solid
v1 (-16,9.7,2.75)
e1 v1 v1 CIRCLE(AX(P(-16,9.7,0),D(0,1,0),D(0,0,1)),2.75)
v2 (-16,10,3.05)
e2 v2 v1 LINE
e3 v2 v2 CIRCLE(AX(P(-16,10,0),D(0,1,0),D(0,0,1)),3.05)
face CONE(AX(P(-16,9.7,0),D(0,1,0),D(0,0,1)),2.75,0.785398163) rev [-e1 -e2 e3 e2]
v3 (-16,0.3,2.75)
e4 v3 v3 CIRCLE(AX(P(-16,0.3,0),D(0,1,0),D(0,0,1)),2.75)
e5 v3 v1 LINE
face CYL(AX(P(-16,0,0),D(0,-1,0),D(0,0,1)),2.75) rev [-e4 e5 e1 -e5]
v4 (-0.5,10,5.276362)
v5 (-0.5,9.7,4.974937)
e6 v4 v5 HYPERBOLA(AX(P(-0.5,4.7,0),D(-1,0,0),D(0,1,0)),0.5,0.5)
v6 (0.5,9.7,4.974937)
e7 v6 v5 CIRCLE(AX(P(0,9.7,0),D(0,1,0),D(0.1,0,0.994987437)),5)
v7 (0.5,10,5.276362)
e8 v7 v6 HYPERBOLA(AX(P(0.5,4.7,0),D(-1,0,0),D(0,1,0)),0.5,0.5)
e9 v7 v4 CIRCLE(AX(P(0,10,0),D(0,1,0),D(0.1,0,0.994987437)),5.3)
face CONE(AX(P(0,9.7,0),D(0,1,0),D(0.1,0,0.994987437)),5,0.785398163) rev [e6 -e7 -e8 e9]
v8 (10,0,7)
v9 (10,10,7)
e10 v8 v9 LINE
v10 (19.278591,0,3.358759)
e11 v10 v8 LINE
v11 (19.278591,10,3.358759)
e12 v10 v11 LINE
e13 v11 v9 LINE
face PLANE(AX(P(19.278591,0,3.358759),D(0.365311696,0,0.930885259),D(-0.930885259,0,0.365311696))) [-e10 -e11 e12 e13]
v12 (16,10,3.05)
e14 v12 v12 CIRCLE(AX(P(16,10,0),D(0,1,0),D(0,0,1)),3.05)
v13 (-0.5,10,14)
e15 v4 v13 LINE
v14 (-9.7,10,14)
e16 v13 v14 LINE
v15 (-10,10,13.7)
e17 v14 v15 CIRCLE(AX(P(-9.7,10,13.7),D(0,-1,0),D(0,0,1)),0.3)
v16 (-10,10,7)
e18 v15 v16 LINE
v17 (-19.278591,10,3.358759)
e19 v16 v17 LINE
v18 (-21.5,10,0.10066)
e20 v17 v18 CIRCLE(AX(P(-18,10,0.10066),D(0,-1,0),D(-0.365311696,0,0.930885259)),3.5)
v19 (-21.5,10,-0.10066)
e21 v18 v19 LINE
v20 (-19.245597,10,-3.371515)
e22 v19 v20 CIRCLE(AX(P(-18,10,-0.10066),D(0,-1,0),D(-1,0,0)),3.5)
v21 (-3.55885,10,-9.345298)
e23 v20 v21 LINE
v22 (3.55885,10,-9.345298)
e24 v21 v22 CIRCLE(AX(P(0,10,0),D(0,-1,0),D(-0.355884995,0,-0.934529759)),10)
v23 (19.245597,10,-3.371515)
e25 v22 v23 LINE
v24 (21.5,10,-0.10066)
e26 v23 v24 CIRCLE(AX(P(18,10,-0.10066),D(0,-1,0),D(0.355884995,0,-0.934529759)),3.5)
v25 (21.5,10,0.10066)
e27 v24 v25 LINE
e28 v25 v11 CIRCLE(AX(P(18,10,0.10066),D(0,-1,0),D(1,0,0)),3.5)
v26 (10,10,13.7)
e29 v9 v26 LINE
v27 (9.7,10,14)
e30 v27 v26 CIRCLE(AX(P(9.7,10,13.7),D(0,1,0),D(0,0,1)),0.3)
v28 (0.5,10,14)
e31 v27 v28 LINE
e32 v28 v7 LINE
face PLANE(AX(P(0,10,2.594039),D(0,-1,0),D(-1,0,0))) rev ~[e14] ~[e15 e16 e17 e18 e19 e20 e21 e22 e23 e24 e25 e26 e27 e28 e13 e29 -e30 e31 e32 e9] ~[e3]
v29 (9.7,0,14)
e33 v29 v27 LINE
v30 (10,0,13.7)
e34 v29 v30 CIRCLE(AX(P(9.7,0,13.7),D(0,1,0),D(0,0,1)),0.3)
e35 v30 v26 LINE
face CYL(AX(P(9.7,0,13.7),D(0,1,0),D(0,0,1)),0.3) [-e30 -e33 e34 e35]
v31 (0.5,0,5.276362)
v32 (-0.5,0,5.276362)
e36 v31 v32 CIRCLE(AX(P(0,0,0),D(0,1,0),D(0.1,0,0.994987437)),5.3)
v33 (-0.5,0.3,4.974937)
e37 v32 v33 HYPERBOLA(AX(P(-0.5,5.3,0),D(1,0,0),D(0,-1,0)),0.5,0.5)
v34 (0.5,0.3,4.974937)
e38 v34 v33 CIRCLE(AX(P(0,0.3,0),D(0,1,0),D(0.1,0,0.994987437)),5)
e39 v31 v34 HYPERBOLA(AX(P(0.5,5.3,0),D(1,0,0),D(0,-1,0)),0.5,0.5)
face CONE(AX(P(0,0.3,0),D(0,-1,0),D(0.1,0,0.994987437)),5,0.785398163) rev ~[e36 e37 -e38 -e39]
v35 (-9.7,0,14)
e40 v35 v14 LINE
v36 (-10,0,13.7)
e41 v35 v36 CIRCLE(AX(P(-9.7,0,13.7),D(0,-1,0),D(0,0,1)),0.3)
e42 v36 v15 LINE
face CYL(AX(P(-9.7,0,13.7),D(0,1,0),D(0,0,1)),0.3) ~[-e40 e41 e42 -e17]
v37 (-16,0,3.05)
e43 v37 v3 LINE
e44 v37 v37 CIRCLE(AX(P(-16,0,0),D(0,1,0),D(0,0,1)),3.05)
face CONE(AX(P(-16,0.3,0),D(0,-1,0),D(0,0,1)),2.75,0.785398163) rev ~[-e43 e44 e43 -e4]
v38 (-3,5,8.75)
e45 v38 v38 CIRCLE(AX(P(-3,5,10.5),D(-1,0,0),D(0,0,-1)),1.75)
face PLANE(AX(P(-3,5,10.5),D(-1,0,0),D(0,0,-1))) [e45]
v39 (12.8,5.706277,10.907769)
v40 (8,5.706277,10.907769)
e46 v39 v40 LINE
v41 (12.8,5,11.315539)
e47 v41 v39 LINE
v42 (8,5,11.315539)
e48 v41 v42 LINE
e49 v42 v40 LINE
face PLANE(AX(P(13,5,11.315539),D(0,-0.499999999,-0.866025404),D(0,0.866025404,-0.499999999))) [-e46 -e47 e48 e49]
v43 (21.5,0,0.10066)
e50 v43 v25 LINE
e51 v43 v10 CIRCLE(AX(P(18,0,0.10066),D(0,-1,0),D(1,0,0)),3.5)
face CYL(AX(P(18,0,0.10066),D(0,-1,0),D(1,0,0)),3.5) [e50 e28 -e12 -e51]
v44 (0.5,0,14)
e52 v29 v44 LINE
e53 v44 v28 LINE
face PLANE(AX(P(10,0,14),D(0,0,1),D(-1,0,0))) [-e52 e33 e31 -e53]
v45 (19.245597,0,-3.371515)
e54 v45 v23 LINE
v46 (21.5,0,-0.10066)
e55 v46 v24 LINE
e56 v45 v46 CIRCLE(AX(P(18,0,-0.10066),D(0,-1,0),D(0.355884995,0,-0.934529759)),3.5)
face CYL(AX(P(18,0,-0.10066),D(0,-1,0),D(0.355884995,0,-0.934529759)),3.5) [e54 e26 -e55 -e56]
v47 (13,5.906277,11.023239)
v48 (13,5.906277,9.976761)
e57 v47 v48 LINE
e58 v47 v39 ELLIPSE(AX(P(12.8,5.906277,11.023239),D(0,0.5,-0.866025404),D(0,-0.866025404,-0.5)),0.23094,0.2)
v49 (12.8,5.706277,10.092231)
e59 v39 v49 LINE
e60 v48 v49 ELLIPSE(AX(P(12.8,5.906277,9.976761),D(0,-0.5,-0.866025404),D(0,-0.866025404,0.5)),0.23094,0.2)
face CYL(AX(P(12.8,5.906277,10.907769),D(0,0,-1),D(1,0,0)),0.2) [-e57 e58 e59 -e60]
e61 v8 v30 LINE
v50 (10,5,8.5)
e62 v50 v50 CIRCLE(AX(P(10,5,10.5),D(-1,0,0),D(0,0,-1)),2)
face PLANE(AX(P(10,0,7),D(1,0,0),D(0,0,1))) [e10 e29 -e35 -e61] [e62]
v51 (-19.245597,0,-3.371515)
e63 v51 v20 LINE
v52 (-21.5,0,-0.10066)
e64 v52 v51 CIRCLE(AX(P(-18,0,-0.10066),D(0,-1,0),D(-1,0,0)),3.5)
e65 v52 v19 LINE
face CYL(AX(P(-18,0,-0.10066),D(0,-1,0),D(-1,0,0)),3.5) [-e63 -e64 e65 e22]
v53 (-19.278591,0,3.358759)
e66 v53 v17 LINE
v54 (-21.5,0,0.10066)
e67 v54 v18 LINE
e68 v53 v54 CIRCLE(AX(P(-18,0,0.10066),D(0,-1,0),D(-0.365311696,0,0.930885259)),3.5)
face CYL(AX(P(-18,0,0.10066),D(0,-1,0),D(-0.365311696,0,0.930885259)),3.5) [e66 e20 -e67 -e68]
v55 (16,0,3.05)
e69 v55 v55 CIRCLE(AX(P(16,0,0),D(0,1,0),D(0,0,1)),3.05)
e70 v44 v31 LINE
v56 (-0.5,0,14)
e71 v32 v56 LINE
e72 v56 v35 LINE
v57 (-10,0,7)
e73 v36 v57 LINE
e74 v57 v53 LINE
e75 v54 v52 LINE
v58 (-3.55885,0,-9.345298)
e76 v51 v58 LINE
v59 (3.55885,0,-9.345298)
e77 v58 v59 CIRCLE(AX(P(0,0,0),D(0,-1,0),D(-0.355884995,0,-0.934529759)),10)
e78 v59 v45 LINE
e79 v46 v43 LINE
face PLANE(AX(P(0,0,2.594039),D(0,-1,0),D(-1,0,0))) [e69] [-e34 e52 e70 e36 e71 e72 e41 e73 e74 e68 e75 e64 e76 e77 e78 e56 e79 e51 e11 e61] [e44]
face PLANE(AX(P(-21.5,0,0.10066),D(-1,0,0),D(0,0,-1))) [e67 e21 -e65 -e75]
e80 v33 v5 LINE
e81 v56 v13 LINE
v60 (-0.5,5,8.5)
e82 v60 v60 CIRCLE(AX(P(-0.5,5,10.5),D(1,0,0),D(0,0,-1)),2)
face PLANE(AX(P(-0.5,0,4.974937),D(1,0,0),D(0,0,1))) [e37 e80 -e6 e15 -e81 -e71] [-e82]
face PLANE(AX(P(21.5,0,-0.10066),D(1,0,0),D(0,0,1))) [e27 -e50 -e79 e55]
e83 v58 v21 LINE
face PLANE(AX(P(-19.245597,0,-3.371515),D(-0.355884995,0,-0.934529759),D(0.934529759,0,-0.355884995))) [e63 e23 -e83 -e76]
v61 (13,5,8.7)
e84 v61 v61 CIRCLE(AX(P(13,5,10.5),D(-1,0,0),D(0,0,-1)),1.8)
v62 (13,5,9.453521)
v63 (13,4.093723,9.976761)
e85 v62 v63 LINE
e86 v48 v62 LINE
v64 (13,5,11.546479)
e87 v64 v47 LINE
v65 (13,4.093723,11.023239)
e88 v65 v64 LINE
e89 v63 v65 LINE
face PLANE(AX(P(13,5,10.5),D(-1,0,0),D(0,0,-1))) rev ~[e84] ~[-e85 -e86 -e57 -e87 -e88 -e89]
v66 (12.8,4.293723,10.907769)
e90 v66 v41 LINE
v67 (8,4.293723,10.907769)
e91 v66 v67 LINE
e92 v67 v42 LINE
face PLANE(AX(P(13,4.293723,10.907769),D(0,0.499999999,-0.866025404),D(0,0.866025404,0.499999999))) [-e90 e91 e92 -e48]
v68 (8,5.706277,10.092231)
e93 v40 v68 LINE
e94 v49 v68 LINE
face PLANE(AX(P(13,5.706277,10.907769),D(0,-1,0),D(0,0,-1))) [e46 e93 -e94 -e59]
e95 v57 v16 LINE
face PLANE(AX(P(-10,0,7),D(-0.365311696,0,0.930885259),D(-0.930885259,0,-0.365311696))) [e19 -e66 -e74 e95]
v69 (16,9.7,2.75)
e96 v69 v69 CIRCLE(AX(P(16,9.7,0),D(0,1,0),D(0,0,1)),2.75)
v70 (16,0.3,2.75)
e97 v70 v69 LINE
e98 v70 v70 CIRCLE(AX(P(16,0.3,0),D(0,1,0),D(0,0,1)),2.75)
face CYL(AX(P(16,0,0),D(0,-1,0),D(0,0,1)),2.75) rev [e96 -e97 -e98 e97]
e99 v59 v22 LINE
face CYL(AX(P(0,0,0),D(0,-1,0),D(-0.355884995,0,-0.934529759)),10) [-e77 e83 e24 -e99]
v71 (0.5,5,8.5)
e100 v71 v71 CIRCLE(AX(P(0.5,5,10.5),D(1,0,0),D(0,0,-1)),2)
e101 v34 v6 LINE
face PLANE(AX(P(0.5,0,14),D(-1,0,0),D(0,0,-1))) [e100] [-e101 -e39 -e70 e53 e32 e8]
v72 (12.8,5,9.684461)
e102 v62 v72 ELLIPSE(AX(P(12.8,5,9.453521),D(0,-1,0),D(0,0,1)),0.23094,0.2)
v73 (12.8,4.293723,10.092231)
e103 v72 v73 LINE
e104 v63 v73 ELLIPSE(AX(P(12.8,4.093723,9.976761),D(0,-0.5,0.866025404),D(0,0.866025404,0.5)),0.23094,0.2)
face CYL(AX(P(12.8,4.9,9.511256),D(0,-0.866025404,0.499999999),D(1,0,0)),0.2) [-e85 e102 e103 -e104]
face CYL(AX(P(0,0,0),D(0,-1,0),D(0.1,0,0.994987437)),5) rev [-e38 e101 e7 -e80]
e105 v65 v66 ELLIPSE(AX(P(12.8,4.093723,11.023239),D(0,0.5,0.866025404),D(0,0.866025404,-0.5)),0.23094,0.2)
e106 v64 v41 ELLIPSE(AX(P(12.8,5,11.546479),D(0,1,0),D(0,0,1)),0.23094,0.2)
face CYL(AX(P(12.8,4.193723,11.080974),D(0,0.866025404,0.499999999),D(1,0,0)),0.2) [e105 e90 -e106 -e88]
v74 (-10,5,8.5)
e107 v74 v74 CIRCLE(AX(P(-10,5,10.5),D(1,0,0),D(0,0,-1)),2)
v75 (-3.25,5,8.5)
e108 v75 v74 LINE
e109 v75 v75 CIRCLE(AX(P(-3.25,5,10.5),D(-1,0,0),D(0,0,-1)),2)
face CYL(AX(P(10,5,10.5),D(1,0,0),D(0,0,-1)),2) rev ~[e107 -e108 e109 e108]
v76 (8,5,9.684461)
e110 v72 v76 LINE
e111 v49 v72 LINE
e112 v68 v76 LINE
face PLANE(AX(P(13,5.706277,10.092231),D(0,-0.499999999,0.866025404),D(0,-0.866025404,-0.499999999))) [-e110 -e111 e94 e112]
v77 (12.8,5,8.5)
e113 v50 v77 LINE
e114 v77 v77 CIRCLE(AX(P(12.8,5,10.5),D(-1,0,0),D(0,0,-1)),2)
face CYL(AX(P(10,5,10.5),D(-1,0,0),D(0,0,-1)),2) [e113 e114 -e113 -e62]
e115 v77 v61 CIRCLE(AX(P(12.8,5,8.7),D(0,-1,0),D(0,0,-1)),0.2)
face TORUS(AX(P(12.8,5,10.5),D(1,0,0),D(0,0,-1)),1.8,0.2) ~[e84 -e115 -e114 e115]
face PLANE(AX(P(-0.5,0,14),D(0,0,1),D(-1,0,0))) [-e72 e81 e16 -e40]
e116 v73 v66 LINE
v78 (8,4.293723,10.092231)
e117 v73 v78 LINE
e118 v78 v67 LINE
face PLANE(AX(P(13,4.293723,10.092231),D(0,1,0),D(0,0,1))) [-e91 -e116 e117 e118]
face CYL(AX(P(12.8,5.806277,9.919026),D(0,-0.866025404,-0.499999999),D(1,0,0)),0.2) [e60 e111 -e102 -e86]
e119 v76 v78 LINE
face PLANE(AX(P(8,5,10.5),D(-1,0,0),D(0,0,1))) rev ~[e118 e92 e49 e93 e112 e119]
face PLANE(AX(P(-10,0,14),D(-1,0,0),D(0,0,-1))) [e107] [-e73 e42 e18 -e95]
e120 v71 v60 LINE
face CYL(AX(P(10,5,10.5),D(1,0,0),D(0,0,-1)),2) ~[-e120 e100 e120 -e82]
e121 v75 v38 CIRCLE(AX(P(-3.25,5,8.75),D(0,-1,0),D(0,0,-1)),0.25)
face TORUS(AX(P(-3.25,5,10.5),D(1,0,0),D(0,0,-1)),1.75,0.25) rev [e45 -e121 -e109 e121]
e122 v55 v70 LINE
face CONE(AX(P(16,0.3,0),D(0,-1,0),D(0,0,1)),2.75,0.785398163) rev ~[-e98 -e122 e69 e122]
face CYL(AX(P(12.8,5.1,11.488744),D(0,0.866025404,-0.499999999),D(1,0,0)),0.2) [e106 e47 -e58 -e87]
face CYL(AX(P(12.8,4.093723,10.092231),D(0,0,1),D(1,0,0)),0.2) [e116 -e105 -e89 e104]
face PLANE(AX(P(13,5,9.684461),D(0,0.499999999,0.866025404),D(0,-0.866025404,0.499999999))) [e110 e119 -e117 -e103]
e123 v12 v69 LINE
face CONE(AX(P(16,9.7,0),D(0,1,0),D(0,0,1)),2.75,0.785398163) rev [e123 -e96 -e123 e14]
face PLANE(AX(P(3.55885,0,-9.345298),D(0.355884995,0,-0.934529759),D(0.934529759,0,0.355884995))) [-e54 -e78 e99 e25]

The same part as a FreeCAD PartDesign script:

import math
import FreeCAD as App
import Part
import Sketcher
from FreeCAD import Vector
Q = App.Units.Quantity


def edges_at(feature, points):
    """Names of the edges that pass closest to the given points."""
    edges = feature.Shape.Edges
    near = lambda p: min(range(len(edges)), key=lambda i: edges[i].distToShape(Part.Vertex(*p))[0])
    return sorted({f"Edge{near(p) + 1}" for p in points})

doc = App.newDocument("Part")
body = doc.addObject("PartDesign::Body", "Body")

# Sketch on XZ plane
sketch1 = doc.addObject("Sketcher::SketchObject", "Sketch")
body.addObject(sketch1)
sketch1.AttachmentSupport = (doc.XZ_Plane, [""])
sketch1.MapMode = "FlatFace"
sketch1.addGeometry([
    Part.LineSegment(Vector(21.5, 0.1, 0), Vector(21.5, -0.1, 0)),  # 0
    Part.ArcOfCircle(Part.Circle(Vector(18, -0.1, 0), Vector(0, 0, 1), 3.5), math.radians(-69), math.radians(0)),  # 1
    Part.LineSegment(Vector(19.25, -3.37, 0), Vector(3.56, -9.35, 0)),  # 2
    Part.ArcOfCircle(Part.Circle(Vector(0, 0, 0), Vector(0, 0, 1), 10), math.radians(-111), math.radians(-69)),  # 3
    Part.LineSegment(Vector(-3.56, -9.35, 0), Vector(-19.25, -3.37, 0)),  # 4
    Part.ArcOfCircle(Part.Circle(Vector(-18, -0.1, 0), Vector(0, 0, 1), 3.5), math.radians(180), math.radians(249)),  # 5
    Part.LineSegment(Vector(-21.5, -0.1, 0), Vector(-21.5, 0.1, 0)),  # 6
    Part.ArcOfCircle(Part.Circle(Vector(-18, 0.1, 0), Vector(0, 0, 1), 3.5), math.radians(111), math.radians(180)),  # 7
    Part.LineSegment(Vector(-19.28, 3.36, 0), Vector(-10, 7, 0)),  # 8
    Part.LineSegment(Vector(-10, 7, 0), Vector(-10, 14, 0)),  # 9
    Part.LineSegment(Vector(-10, 14, 0), Vector(-0.5, 14, 0)),  # 10
    Part.LineSegment(Vector(-0.5, 14, 0), Vector(-0.5, 4.97, 0)),  # 11
    Part.ArcOfCircle(Part.Circle(Vector(0, 0, 0), Vector(0, 0, 1), 5), math.radians(96), math.radians(444)),  # 12
    Part.LineSegment(Vector(0.5, 4.97, 0), Vector(0.5, 14, 0)),  # 13
    Part.LineSegment(Vector(0.5, 14, 0), Vector(10, 14, 0)),  # 14
    Part.LineSegment(Vector(10, 14, 0), Vector(10, 7, 0)),  # 15
    Part.LineSegment(Vector(10, 7, 0), Vector(19.28, 3.36, 0)),  # 16
    Part.ArcOfCircle(Part.Circle(Vector(18, 0.1, 0), Vector(0, 0, 1), 3.5), math.radians(0), math.radians(69)),  # 17
    Part.Circle(Vector(16, 0, 0), Vector(0, 0, 1), 2.75),  # 18
    Part.Circle(Vector(-16, 0, 0), Vector(0, 0, 1), 2.75),  # 19
], False)
sketch1.addConstraint([
    Sketcher.Constraint("Tangent", 0, 2, 1, 2),
    Sketcher.Constraint("Tangent", 1, 1, 2, 1),
    Sketcher.Constraint("Tangent", 2, 2, 3, 2),
    Sketcher.Constraint("Tangent", 3, 1, 4, 1),
    Sketcher.Constraint("Tangent", 4, 2, 5, 2),
    Sketcher.Constraint("Tangent", 5, 1, 6, 1),
    Sketcher.Constraint("Tangent", 6, 2, 7, 2),
    Sketcher.Constraint("Tangent", 7, 1, 8, 1),
    Sketcher.Constraint("Coincident", 8, 2, 9, 1),
    Sketcher.Constraint("Coincident", 9, 2, 10, 1),
    Sketcher.Constraint("Coincident", 10, 2, 11, 1),
    Sketcher.Constraint("Coincident", 11, 2, 12, 1),
    Sketcher.Constraint("Coincident", 12, 2, 13, 1),
    Sketcher.Constraint("Coincident", 13, 2, 14, 1),
    Sketcher.Constraint("Coincident", 14, 2, 15, 1),
    Sketcher.Constraint("Coincident", 15, 2, 16, 1),
    Sketcher.Constraint("Tangent", 16, 2, 17, 2),
    Sketcher.Constraint("Tangent", 17, 1, 0, 1),
    Sketcher.Constraint("Vertical", 0),
    Sketcher.Constraint("Vertical", 6),
    Sketcher.Constraint("Vertical", 9),
    Sketcher.Constraint("Horizontal", 10),
    Sketcher.Constraint("Vertical", 11),
    Sketcher.Constraint("Vertical", 13),
    Sketcher.Constraint("Horizontal", 14),
    Sketcher.Constraint("Vertical", 15),
    Sketcher.Constraint("Coincident", 3, 3, -1, 1),
    Sketcher.Constraint("Coincident", 12, 3, -1, 1),
    Sketcher.Constraint("Equal", 1, 5),
    Sketcher.Constraint("Equal", 5, 7),
    Sketcher.Constraint("Equal", 7, 17),
    Sketcher.Constraint("Equal", 18, 19),
    Sketcher.Constraint("Symmetric", 1, 3, 7, 3, -1, 1),
    Sketcher.Constraint("Symmetric", 18, 3, 19, 3, -1, 1),
    Sketcher.Constraint("Symmetric", 10, 2, 13, 2, -2),
    Sketcher.Constraint("Symmetric", 8, 2, 15, 2, -2),
    Sketcher.Constraint("PointOnObject", 18, 3, -1),
    Sketcher.Constraint("Horizontal", 1, 3, 5, 3),
    Sketcher.Constraint("Horizontal", 7, 3, 17, 3),
    Sketcher.Constraint("Radius", 3, 10.0),
    Sketcher.Constraint("Radius", 12, 5.0),
    Sketcher.Constraint("Diameter", 18, 5.5),
    Sketcher.Constraint("Radius", 1, 3.5),
    Sketcher.Constraint("DistanceY", 9, 1, 9, 2, 7.0),
    Sketcher.Constraint("DistanceX", 10, 1, 10, 2, 9.5),
    Sketcher.Constraint("DistanceX", -1, 1, 1, 3, 18.0),
    Sketcher.Constraint("DistanceX", -1, 1, 18, 3, 16.0),
    Sketcher.Constraint("DistanceX", 8, 2, -1, 1, 10.0),
    Sketcher.Constraint("DistanceY", -1, 1, 8, 2, 7.0),
    Sketcher.Constraint("DistanceY", 0, 2, 0, 1, 0.201321),
])
pad1 = doc.addObject("PartDesign::Pad", "Pad")
body.addObject(pad1)
pad1.Profile = sketch1
pad1.Length = 10
pad1.Reversed = True

# Sketch on YZ plane
sketch2 = doc.addObject("Sketcher::SketchObject", "Sketch001")
body.addObject(sketch2)
sketch2.AttachmentSupport = (doc.YZ_Plane, [""])
sketch2.MapMode = "FlatFace"
sketch2.AttachmentOffset = App.Placement(Vector(0, 0, 10), App.Rotation())
sketch2.addGeometry(Part.Circle(Vector(5, 10.5, 0), Vector(0, 0, 1), 2), False)
sketch2.addConstraint([
    Sketcher.Constraint("Diameter", 0, 4.0),
    Sketcher.Constraint("DistanceX", -1, 1, 0, 3, 5.0),
    Sketcher.Constraint("DistanceY", -1, 1, 0, 3, 10.5),
])
pocket1 = doc.addObject("PartDesign::Pocket", "Pocket")
body.addObject(pocket1)
pocket1.Profile = sketch2
pocket1.Type = "ThroughAll"

# Sketch on YZ plane
sketch3 = doc.addObject("Sketcher::SketchObject", "Sketch002")
body.addObject(sketch3)
sketch3.AttachmentSupport = (doc.YZ_Plane, [""])
sketch3.MapMode = "FlatFace"
sketch3.AttachmentOffset = App.Placement(Vector(0, 0, 10), App.Rotation())
sketch3.addGeometry(Part.Circle(Vector(5, 10.5, 0), Vector(0, 0, 1), 2), False)
sketch3.addConstraint([
    Sketcher.Constraint("Diameter", 0, 4.0),
    Sketcher.Constraint("DistanceX", -1, 1, 0, 3, 5.0),
    Sketcher.Constraint("DistanceY", -1, 1, 0, 3, 10.5),
])
pad2 = doc.addObject("PartDesign::Pad", "Pad001")
body.addObject(pad2)
pad2.Profile = sketch3
pad2.Type = "TwoLengths"
pad2.Length = 13
pad2.Length2 = 3
pad2.Reversed = True

# Sketch on YZ plane
sketch4 = doc.addObject("Sketcher::SketchObject", "Sketch003")
body.addObject(sketch4)
sketch4.AttachmentSupport = (doc.YZ_Plane, [""])
sketch4.MapMode = "FlatFace"
sketch4.AttachmentOffset = App.Placement(Vector(0, 0, 13), App.Rotation())
sketch4.addGeometry([
    Part.LineSegment(Vector(4.3, 10.9, 0), Vector(5, 11.3, 0)),  # 0
    Part.LineSegment(Vector(5, 11.3, 0), Vector(5.7, 10.9, 0)),  # 1
    Part.LineSegment(Vector(5.7, 10.9, 0), Vector(5.7, 10.1, 0)),  # 2
    Part.LineSegment(Vector(5.7, 10.1, 0), Vector(5, 9.7, 0)),  # 3
    Part.LineSegment(Vector(5, 9.7, 0), Vector(4.3, 10.1, 0)),  # 4
    Part.LineSegment(Vector(4.3, 10.1, 0), Vector(4.3, 10.9, 0)),  # 5
], False)
sketch4.addConstraint([
    Sketcher.Constraint("Coincident", 0, 2, 1, 1),
    Sketcher.Constraint("Coincident", 1, 2, 2, 1),
    Sketcher.Constraint("Coincident", 2, 2, 3, 1),
    Sketcher.Constraint("Coincident", 3, 2, 4, 1),
    Sketcher.Constraint("Coincident", 4, 2, 5, 1),
    Sketcher.Constraint("Coincident", 5, 2, 0, 1),
    Sketcher.Constraint("Vertical", 2),
    Sketcher.Constraint("Vertical", 5),
    Sketcher.Constraint("Parallel", 0, 3),
    Sketcher.Constraint("Parallel", 1, 4),
    Sketcher.Constraint("Horizontal", 2, 2, 4, 2),
    Sketcher.Constraint("Horizontal", 1, 2, 5, 2),
    Sketcher.Constraint("Vertical", 0, 2, 3, 2),
    Sketcher.Constraint("Angle", 0, Q("30 deg")),
    Sketcher.Constraint("DistanceX", -1, 1, 0, 2, 5.0),
    Sketcher.Constraint("DistanceY", 2, 2, 2, 1, 0.815539),
    Sketcher.Constraint("Distance", 0, 0.815539),
    Sketcher.Constraint("DistanceY", -1, 1, 0, 2, 11.315539),
])
pocket2 = doc.addObject("PartDesign::Pocket", "Pocket001")
body.addObject(pocket2)
pocket2.Profile = sketch4
pocket2.Length = 5
doc.recompute()

fillet = doc.addObject("PartDesign::Fillet", "Fillet")
body.addObject(fillet)
fillet.Base = (pocket2, edges_at(pocket2, [
    (13, 5, 12.5),
    (13, 4.647, 11.112),
    (13, 4.294, 10.5),
    (13, 4.647, 9.888),
    (13, 5.353, 9.888),
    (13, 5.706, 10.5),
    (13, 5.353, 11.112),
]))
fillet.Radius = 0.2
doc.recompute()

fillet2 = doc.addObject("PartDesign::Fillet", "Fillet001")
body.addObject(fillet2)
fillet2.Base = (fillet, edges_at(fillet, [(-3, 5, 12.5)]))
fillet2.Radius = 0.25
doc.recompute()

chamfer = doc.addObject("PartDesign::Chamfer", "Chamfer")
body.addObject(chamfer)
chamfer.Base = (fillet2, edges_at(fillet2, [
    (0, 0, -5),
    (-16, 0, -2.75),
    (0, 10, -5),
    (-16, 10, -2.75),
    (16, 0, -2.75),
    (16, 10, -2.75),
]))
chamfer.Size = 0.3
doc.recompute()

fillet3 = doc.addObject("PartDesign::Fillet", "Fillet002")
body.addObject(fillet3)
fillet3.Base = (chamfer, edges_at(chamfer, [(10, 5, 14), (-10, 5, 14)]))
fillet3.Radius = 0.3

doc.recompute()
